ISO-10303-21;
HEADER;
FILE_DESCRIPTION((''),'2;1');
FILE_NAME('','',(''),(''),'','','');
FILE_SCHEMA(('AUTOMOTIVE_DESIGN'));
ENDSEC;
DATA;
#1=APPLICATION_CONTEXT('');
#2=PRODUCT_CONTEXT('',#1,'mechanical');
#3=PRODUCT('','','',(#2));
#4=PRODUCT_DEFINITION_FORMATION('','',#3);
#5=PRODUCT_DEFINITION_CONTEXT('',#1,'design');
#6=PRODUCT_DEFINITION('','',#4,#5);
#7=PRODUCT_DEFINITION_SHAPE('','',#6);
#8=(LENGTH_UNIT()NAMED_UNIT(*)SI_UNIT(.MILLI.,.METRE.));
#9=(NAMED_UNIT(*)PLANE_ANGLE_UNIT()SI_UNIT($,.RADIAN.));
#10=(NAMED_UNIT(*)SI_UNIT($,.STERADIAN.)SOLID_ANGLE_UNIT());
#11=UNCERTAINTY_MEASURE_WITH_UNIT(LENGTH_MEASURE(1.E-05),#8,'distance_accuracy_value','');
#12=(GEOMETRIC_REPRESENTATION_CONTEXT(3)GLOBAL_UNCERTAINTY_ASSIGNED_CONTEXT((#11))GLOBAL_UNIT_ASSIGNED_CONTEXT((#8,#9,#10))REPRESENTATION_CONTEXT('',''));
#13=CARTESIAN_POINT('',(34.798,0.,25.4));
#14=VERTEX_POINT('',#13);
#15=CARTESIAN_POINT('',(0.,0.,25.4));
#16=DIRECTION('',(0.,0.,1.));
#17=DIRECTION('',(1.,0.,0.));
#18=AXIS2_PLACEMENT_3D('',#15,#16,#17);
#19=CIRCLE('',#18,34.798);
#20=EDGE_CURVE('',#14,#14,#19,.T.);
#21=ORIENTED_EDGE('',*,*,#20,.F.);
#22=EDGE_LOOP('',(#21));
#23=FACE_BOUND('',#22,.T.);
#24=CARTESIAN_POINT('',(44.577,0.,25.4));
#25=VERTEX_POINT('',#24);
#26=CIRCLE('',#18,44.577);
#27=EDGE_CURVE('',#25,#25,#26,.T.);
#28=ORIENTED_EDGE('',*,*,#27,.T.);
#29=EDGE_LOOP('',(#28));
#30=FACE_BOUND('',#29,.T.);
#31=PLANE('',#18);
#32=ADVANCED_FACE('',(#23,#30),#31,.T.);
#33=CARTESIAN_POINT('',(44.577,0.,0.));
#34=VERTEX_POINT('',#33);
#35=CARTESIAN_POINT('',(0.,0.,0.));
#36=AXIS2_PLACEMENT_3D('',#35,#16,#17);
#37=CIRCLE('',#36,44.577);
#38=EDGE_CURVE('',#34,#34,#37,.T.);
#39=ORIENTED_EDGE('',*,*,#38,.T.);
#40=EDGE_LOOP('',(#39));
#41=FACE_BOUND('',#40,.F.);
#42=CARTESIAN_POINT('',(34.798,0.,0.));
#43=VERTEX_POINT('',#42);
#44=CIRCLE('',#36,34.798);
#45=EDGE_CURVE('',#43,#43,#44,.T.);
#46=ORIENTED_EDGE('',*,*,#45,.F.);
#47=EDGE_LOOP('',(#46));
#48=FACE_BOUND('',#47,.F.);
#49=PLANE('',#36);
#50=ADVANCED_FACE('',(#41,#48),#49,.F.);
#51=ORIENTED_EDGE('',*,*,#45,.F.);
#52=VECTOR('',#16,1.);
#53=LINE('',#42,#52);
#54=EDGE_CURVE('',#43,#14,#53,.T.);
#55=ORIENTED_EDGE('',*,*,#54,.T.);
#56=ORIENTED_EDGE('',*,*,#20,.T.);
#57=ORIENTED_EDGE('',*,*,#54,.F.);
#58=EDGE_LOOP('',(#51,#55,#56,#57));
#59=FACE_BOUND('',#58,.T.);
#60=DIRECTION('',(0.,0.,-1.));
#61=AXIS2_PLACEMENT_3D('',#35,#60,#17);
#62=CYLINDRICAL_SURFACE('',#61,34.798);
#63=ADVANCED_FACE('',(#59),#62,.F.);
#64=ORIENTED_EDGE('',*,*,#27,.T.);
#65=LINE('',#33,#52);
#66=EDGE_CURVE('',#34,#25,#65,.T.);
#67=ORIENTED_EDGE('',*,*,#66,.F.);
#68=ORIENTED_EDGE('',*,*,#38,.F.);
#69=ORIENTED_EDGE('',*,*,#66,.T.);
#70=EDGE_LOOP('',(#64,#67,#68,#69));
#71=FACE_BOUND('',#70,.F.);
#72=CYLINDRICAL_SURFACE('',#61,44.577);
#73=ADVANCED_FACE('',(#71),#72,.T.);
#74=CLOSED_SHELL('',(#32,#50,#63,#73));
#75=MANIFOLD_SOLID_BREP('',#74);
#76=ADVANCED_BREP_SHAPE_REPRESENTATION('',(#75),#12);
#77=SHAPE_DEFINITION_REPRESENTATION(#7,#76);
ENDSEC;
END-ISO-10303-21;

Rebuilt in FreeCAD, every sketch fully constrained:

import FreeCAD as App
import Part
import Sketcher
Q = App.Units.Quantity

doc = App.newDocument("Part")
body = doc.addObject("PartDesign::Body", "Body")

# Sketch on XY plane
sketch1 = doc.addObject("Sketcher::SketchObject", "Sketch")
body.addObject(sketch1)
sketch1.AttachmentSupport = (doc.XY_Plane, [""])
sketch1.MapMode = "FlatFace"
sketch1.addGeometry(Part.Circle(App.Vector(0, 0, 0), App.Vector(0, 0, 1), 45), False)
sketch1.addGeometry(Part.Circle(App.Vector(0, 0, 0), App.Vector(0, 0, 1), 35), False)
sketch1.addConstraint(Sketcher.Constraint("Coincident", 0, 3, -1, 1))
sketch1.addConstraint(Sketcher.Constraint("Coincident", 1, 3, -1, 1))
sketch1.addConstraint(Sketcher.Constraint("Diameter", 0, Q("3.51 in")))
sketch1.addConstraint(Sketcher.Constraint("Diameter", 1, Q("2.74 in")))
pad1 = doc.addObject("PartDesign::Pad", "Pad")
body.addObject(pad1)
pad1.Profile = sketch1
pad1.Length = Q("1 in")

doc.recompute()
